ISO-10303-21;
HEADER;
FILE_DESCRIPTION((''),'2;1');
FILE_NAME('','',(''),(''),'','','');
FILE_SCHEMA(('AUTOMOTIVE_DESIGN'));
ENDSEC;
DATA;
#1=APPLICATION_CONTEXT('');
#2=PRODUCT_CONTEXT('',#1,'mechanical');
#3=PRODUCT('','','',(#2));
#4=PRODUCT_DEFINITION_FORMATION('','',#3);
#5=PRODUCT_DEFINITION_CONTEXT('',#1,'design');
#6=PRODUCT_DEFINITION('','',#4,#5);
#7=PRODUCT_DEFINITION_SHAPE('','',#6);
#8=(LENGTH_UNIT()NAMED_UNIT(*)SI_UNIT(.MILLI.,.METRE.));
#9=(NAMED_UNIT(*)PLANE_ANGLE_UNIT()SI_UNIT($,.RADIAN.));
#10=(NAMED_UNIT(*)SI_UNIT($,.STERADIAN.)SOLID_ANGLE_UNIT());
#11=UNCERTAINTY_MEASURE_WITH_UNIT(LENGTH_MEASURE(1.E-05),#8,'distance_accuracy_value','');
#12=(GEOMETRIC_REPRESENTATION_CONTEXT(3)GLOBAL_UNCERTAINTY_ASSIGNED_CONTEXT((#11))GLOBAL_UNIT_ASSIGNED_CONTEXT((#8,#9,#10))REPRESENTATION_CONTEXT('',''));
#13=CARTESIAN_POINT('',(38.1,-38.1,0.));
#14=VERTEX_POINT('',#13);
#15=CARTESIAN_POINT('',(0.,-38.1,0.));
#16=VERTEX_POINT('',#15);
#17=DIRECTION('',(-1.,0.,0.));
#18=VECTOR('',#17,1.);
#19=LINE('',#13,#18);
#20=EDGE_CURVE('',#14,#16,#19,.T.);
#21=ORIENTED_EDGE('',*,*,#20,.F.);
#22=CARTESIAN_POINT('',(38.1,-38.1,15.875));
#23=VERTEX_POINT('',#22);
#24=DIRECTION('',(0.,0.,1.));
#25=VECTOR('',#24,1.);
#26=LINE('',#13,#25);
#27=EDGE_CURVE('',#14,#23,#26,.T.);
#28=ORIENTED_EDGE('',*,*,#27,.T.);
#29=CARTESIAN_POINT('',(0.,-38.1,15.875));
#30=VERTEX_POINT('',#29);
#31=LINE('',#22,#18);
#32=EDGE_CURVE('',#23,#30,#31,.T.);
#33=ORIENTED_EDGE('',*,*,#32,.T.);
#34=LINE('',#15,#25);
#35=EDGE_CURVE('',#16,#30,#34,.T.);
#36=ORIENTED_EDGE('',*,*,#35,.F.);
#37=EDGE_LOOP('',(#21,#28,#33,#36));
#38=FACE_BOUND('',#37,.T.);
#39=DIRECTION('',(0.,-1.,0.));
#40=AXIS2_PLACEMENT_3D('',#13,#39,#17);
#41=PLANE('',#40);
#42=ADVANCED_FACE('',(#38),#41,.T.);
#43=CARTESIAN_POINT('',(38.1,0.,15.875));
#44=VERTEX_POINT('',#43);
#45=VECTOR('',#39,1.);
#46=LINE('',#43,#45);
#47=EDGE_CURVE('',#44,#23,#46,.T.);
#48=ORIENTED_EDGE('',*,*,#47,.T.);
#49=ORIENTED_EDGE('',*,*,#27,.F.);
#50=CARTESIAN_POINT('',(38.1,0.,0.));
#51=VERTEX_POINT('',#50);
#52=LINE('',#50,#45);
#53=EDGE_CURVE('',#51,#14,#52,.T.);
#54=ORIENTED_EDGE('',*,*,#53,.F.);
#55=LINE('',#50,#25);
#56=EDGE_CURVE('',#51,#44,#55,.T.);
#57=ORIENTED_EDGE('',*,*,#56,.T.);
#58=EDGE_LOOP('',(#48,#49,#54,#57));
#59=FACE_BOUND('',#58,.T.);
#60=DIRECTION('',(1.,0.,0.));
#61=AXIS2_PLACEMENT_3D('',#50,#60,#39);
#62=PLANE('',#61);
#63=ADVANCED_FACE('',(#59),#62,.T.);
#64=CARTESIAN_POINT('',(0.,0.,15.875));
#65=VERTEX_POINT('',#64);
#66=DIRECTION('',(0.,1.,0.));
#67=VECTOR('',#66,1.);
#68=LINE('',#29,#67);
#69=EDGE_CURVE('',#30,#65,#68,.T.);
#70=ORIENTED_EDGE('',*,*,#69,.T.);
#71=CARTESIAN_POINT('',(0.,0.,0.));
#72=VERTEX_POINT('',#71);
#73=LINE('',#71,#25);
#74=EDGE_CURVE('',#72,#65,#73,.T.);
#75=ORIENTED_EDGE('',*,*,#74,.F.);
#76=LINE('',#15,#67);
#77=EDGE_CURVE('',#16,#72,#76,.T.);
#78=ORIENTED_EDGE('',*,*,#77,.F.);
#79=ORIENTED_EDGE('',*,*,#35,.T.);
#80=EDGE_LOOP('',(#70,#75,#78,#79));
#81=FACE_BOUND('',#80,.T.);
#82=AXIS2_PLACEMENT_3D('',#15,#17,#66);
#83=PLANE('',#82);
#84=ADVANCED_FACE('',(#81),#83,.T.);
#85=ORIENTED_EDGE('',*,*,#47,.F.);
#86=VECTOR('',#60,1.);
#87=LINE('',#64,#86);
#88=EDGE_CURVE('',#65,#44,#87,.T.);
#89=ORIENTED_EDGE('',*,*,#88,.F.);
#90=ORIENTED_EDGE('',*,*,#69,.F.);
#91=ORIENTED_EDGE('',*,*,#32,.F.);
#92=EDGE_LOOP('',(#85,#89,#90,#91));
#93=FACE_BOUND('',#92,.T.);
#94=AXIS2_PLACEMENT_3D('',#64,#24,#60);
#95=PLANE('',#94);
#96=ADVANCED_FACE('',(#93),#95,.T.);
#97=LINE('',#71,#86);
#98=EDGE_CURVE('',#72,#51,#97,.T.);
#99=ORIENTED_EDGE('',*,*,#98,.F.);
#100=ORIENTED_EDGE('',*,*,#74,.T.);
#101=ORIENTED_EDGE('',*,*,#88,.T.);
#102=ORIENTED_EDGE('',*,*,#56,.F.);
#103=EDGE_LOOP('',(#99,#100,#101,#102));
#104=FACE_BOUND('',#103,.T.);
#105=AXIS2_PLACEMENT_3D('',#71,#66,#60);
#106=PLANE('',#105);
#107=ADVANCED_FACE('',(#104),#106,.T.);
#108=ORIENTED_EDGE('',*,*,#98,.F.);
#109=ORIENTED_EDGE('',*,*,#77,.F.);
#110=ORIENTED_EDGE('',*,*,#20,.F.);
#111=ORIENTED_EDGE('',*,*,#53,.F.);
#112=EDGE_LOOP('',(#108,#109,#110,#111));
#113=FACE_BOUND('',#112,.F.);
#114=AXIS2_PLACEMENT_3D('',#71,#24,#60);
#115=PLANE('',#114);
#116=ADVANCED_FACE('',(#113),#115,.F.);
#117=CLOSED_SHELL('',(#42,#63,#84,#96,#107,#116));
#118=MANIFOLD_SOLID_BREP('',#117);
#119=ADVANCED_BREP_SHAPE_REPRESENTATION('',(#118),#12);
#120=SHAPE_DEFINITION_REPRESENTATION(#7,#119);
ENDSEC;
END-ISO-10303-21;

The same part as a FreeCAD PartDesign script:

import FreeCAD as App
import Part
import Sketcher

V = App.Vector
Q = App.Units.Quantity


def add_polygon(sketch, points):
    """Adds a closed chain of lines whose ends are joined by coincident constraints."""
    first, n = sketch.GeometryCount, len(points)
    for a, b in zip(points, points[1:] + points[:1]):
        sketch.addGeometry(Part.LineSegment(App.Vector(*a, 0), App.Vector(*b, 0)), False)
    for i in range(n):
        sketch.addConstraint(Sketcher.Constraint("Coincident", first + i, 2, first + (i + 1) % n, 1))

doc = App.newDocument("Part")
body = doc.addObject("PartDesign::Body", "Body")

sketch1 = body.newObject("Sketcher::SketchObject", "Sketch")
sketch1.AttachmentSupport = (doc.getObject("XY_Plane"), [""])
sketch1.MapMode = "FlatFace"
add_polygon(sketch1, [(38, 0), (0, 0), (0, -38), (38, -38)])
sketch1.addConstraint([
    Sketcher.Constraint("Horizontal", 0),
    Sketcher.Constraint("Vertical", 1),
    Sketcher.Constraint("Horizontal", 2),
    Sketcher.Constraint("Vertical", 3),
    Sketcher.Constraint("Coincident", 0, 2, -1, 1),
    Sketcher.Constraint("Equal", 2, 1),
    Sketcher.Constraint("DistanceX", 0, 2, 0, 1, Q("1.5 in")),
])
pad1 = body.newObject("PartDesign::Pad", "Pad")
pad1.Profile = sketch1
pad1.Length = Q("0.625 in")

doc.recompute()
